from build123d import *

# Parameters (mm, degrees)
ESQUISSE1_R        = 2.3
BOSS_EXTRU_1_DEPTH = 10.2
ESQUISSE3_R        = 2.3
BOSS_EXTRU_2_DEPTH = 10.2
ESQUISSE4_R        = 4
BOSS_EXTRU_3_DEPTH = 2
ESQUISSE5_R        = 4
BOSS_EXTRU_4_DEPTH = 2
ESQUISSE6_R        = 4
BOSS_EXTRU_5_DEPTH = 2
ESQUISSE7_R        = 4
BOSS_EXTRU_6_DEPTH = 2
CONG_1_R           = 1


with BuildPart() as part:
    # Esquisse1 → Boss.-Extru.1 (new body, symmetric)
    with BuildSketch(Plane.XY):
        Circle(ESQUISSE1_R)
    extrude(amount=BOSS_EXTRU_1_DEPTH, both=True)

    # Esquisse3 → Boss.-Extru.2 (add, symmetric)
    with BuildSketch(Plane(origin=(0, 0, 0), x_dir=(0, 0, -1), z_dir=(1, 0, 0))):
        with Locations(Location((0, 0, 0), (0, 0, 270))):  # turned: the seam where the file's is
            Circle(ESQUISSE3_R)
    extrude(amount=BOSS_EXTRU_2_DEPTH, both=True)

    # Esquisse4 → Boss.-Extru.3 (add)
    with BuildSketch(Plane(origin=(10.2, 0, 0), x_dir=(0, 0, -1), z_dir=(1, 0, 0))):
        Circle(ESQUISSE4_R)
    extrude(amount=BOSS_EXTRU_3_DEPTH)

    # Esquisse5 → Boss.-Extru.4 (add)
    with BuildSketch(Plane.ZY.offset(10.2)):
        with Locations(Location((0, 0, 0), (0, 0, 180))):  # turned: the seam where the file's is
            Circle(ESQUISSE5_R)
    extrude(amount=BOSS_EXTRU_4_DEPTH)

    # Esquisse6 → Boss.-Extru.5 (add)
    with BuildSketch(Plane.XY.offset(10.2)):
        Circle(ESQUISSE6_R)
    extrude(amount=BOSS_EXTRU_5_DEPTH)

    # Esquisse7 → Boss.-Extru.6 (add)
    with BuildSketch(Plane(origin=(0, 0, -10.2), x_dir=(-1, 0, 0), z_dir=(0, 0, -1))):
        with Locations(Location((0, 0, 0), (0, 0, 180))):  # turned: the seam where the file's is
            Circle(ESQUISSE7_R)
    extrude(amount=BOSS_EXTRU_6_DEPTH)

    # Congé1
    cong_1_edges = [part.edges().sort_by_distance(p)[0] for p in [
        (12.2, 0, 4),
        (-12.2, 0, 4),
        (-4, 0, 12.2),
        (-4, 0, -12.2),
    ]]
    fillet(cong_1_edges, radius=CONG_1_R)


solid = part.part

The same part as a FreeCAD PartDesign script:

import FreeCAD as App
import Part
import Sketcher

V = App.Vector
Q = App.Units.Quantity


def edges_at(feature, points):
    """Names of the edges that pass closest to the given points."""
    edges = feature.Shape.Edges
    near = lambda p: min(range(len(edges)), key=lambda i: edges[i].distToShape(Part.Vertex(*p))[0])
    return sorted({f"Edge{near(p) + 1}" for p in points})

doc = App.newDocument("Part")
body = doc.addObject("PartDesign::Body", "Body")

# Sketch on XY plane
sketch1 = doc.addObject("Sketcher::SketchObject", "Sketch")
body.addObject(sketch1)
sketch1.AttachmentSupport = (doc.XY_Plane, [""])
sketch1.MapMode = "FlatFace"
sketch1.addGeometry(Part.Circle(V(0, 0, 0), V(0, 0, 1), 2.3), False)
sketch1.addConstraint([
    Sketcher.Constraint("Coincident", 0, 3, -1, 1),
    Sketcher.Constraint("Diameter", 0, Q("4.6 mm")),
])
pad1 = doc.addObject("PartDesign::Pad", "Pad")
body.addObject(pad1)
pad1.Profile = sketch1
pad1.Length = 20.4
pad1.Midplane = True

# Sketch on YZ plane
sketch2 = doc.addObject("Sketcher::SketchObject", "Sketch001")
body.addObject(sketch2)
sketch2.AttachmentSupport = (doc.YZ_Plane, [""])
sketch2.MapMode = "FlatFace"
sketch2.addGeometry(Part.Circle(V(0, 0, 0), V(0, 0, 1), 2.3), False)
sketch2.addConstraint([
    Sketcher.Constraint("Coincident", 0, 3, -1, 1),
    Sketcher.Constraint("Diameter", 0, Q("4.6 mm")),
])
pad2 = doc.addObject("PartDesign::Pad", "Pad001")
body.addObject(pad2)
pad2.Profile = sketch2
pad2.Length = 20.4
pad2.Midplane = True

# Sketch on YZ plane
sketch3 = doc.addObject("Sketcher::SketchObject", "Sketch002")
body.addObject(sketch3)
sketch3.AttachmentSupport = (doc.YZ_Plane, [""])
sketch3.MapMode = "FlatFace"
sketch3.AttachmentOffset = App.Placement(V(0, 0, 10.2), App.Rotation())
sketch3.addGeometry(Part.Circle(V(0, 0, 0), V(0, 0, 1), 4), False)
sketch3.addConstraint([
    Sketcher.Constraint("Coincident", 0, 3, -1, 1),
    Sketcher.Constraint("Diameter", 0, Q("8 mm")),
])
pad3 = doc.addObject("PartDesign::Pad", "Pad002")
body.addObject(pad3)
pad3.Profile = sketch3
pad3.Length = 2

# Sketch on YZ plane
sketch4 = doc.addObject("Sketcher::SketchObject", "Sketch003")
body.addObject(sketch4)
sketch4.AttachmentSupport = (doc.YZ_Plane, [""])
sketch4.MapMode = "FlatFace"
sketch4.AttachmentOffset = App.Placement(V(0, 0, -10.2), App.Rotation())
sketch4.addGeometry(Part.Circle(V(0, 0, 0), V(0, 0, 1), 4), False)
sketch4.addConstraint([
    Sketcher.Constraint("Coincident", 0, 3, -1, 1),
    Sketcher.Constraint("Diameter", 0, Q("8 mm")),
])
pad4 = doc.addObject("PartDesign::Pad", "Pad003")
body.addObject(pad4)
pad4.Profile = sketch4
pad4.Length = 2
pad4.Reversed = True

# Sketch on XY plane
sketch5 = doc.addObject("Sketcher::SketchObject", "Sketch004")
body.addObject(sketch5)
sketch5.AttachmentSupport = (doc.XY_Plane, [""])
sketch5.MapMode = "FlatFace"
sketch5.AttachmentOffset = App.Placement(V(0, 0, 10.2), App.Rotation())
sketch5.addGeometry(Part.Circle(V(0, 0, 0), V(0, 0, 1), 4), False)
sketch5.addConstraint([
    Sketcher.Constraint("Coincident", 0, 3, -1, 1),
    Sketcher.Constraint("Diameter", 0, Q("8 mm")),
])
pad5 = doc.addObject("PartDesign::Pad", "Pad004")
body.addObject(pad5)
pad5.Profile = sketch5
pad5.Length = 2

# Sketch on XY plane
sketch6 = doc.addObject("Sketcher::SketchObject", "Sketch005")
body.addObject(sketch6)
sketch6.AttachmentSupport = (doc.XY_Plane, [""])
sketch6.MapMode = "FlatFace"
sketch6.AttachmentOffset = App.Placement(V(0, 0, -10.2), App.Rotation())
sketch6.addGeometry(Part.Circle(V(0, 0, 0), V(0, 0, 1), 4), False)
sketch6.addConstraint([
    Sketcher.Constraint("Coincident", 0, 3, -1, 1),
    Sketcher.Constraint("Diameter", 0, Q("8 mm")),
])
pad6 = doc.addObject("PartDesign::Pad", "Pad005")
body.addObject(pad6)
pad6.Profile = sketch6
pad6.Length = 2
pad6.Reversed = True
doc.recompute()

fillet = doc.addObject("PartDesign::Fillet", "Fillet")
body.addObject(fillet)
fillet.Base = (pad6, edges_at(pad6, [
    (12.2, 0, 4),
    (-12.2, 0, 4),
    (-4, 0, 12.2),
    (-4, 0, -12.2),
]))
fillet.Radius = 1

doc.recompute()
